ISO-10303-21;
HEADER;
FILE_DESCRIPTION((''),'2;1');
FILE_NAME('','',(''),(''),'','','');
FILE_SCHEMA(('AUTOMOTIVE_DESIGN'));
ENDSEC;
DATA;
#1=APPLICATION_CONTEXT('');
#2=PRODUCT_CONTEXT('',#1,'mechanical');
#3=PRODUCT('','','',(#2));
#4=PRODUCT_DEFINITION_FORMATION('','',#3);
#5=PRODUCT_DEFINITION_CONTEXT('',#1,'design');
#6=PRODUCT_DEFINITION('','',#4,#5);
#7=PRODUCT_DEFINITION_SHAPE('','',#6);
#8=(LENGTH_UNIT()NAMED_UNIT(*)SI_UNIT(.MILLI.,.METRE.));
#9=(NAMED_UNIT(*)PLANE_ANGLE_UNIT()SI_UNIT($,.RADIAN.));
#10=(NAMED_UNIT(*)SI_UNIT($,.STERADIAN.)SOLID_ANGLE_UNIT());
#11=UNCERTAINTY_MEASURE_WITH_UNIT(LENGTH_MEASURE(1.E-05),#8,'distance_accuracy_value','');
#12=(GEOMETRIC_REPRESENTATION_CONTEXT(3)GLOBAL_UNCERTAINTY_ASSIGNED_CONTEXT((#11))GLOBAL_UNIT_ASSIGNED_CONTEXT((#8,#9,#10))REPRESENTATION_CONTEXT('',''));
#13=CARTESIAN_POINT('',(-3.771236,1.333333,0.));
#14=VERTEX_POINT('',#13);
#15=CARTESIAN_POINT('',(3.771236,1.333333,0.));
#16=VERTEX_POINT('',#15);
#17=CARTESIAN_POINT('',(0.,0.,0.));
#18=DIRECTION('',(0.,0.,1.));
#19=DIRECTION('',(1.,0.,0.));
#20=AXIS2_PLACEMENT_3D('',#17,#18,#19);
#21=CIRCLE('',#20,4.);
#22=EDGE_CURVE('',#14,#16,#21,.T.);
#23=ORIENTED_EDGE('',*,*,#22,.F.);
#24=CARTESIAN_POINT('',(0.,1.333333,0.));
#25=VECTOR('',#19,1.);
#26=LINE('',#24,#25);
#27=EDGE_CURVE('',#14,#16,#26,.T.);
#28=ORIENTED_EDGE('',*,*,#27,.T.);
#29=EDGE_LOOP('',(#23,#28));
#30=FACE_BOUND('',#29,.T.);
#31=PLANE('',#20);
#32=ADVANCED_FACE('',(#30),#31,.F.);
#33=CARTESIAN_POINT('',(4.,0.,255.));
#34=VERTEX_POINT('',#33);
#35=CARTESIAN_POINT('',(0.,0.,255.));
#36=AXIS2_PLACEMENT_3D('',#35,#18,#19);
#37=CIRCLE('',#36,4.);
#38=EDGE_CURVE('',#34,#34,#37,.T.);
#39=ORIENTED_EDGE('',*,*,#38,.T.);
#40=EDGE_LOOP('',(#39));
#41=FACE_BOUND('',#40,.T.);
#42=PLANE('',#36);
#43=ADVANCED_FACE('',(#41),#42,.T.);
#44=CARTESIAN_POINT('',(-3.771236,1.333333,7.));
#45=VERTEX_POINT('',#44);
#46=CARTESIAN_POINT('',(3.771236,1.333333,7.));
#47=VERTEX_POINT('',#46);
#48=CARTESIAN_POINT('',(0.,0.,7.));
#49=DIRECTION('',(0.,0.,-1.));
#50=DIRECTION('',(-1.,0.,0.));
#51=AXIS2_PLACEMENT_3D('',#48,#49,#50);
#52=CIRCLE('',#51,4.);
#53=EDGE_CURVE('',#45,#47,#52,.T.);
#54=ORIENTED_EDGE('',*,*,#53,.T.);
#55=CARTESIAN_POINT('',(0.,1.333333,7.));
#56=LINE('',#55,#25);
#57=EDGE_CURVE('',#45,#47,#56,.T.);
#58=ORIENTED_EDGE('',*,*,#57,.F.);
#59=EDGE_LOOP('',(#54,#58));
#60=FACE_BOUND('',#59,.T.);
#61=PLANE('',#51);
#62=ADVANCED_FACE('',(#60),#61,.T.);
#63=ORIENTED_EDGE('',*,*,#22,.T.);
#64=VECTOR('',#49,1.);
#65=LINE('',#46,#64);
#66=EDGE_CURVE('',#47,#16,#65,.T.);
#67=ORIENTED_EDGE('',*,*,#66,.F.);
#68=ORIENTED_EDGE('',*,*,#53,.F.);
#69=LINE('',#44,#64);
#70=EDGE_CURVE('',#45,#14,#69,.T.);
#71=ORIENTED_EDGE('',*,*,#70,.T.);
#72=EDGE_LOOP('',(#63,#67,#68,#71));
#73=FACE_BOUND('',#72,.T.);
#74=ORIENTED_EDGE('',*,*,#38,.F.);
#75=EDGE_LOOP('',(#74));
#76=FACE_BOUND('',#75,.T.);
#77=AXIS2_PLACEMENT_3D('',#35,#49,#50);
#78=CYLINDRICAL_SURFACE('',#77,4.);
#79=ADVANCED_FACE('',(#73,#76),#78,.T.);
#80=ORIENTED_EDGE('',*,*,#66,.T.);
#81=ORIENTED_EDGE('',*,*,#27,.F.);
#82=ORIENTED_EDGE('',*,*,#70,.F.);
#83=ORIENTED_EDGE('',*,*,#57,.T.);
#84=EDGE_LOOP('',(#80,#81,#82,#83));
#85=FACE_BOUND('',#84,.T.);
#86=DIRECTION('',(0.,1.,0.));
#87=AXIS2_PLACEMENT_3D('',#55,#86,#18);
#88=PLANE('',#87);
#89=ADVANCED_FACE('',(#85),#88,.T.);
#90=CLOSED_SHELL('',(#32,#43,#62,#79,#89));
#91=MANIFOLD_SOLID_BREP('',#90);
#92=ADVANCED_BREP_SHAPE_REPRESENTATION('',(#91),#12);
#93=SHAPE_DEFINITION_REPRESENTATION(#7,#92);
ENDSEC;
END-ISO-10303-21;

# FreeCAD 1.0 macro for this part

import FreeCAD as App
import Part
import Sketcher
from FreeCAD import Vector


def add_polygon(sketch, points):
    """Adds a closed chain of lines whose ends are joined by coincident constraints."""
    first, n = sketch.GeometryCount, len(points)
    for a, b in zip(points, points[1:] + points[:1]):
        sketch.addGeometry(Part.LineSegment(App.Vector(*a, 0), App.Vector(*b, 0)), False)
    for i in range(n):
        sketch.addConstraint(Sketcher.Constraint("Coincident", first + i, 2, first + (i + 1) % n, 1))

doc = App.newDocument("Part")
body = doc.addObject("PartDesign::Body", "Body")

# Sketch on XY plane
sketch1 = body.newObject("Sketcher::SketchObject", "Sketch")
sketch1.AttachmentSupport = (doc.getObject("XY_Plane"), [""])
sketch1.MapMode = "FlatFace"
sketch1.addGeometry(Part.Circle(Vector(0, 0, 0), Vector(0, 0, 1), 4), False)
sketch1.addConstraint(Sketcher.Constraint("Coincident", 0, 3, -1, 1))
sketch1.addConstraint(Sketcher.Constraint("Diameter", 0, 8.0))
pad1 = body.newObject("PartDesign::Pad", "Pad")
pad1.Profile = sketch1
pad1.Length = 255

# Sketch on XY plane
sketch2 = body.newObject("Sketcher::SketchObject", "Sketch001")
sketch2.AttachmentSupport = (doc.getObject("XY_Plane"), [""])
sketch2.MapMode = "FlatFace"
add_polygon(sketch2, [(-4, 1), (4, 1), (8, 7), (-8, 7)])  # lines 0-3
sketch2.addConstraint(Sketcher.Constraint("Horizontal", 0))
sketch2.addConstraint(Sketcher.Constraint("Horizontal", 2))
sketch2.addConstraint(Sketcher.Constraint("DistanceX", 2, 2, 2, 1, 15.941939))
sketch2.addConstraint(Sketcher.Constraint("Distance", 3, 7.11526))
sketch2.addConstraint(Sketcher.Constraint("DistanceX", 0, 1, 0, 2, 7.542472))
sketch2.addConstraint(Sketcher.Constraint("DistanceX", 0, 2, 1, 2, 3.95145))
sketch2.addConstraint(Sketcher.Constraint("DistanceX", -1, 1, 0, 2, 3.771236))
sketch2.addConstraint(Sketcher.Constraint("DistanceY", -1, 1, 0, 2, 1.333333))
pocket1 = body.newObject("PartDesign::Pocket", "Pocket")
pocket1.Profile = sketch2
pocket1.Length = 7
pocket1.Reversed = True

doc.recompute()
